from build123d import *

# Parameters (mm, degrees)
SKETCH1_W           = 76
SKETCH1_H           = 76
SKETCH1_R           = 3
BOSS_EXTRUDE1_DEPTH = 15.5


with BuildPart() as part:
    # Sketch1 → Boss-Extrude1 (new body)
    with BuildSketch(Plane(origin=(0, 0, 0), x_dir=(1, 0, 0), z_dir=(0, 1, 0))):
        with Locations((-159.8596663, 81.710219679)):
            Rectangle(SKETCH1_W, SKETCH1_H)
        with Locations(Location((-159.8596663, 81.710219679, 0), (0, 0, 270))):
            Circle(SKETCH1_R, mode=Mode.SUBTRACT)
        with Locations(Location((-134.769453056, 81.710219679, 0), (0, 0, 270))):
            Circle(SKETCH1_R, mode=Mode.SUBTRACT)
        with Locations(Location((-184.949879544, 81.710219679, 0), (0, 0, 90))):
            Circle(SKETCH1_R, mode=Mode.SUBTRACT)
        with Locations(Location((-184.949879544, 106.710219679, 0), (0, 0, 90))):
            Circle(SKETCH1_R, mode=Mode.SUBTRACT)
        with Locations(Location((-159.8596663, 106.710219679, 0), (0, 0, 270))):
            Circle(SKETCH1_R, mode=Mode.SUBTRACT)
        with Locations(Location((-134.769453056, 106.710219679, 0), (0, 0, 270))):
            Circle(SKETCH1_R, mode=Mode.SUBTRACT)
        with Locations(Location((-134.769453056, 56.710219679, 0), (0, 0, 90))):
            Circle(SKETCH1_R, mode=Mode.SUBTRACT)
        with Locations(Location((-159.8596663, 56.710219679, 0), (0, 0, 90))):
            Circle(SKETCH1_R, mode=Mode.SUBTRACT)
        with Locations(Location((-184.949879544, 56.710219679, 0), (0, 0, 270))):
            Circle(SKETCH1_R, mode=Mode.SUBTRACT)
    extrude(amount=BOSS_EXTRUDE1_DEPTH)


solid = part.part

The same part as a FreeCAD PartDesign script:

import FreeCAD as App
import Part
import Sketcher
from FreeCAD import Vector


def add_polygon(sketch, points):
    """Adds a closed chain of lines whose ends are joined by coincident constraints."""
    first, n = sketch.GeometryCount, len(points)
    for a, b in zip(points, points[1:] + points[:1]):
        sketch.addGeometry(Part.LineSegment(App.Vector(*a, 0), App.Vector(*b, 0)), False)
    for i in range(n):
        sketch.addConstraint(Sketcher.Constraint("Coincident", first + i, 2, first + (i + 1) % n, 1))

doc = App.newDocument("Part")
body = doc.addObject("PartDesign::Body", "Body")

sketch1 = body.newObject("Sketcher::SketchObject", "Sketch")
sketch1.AttachmentSupport = (doc.getObject("XZ_Plane"), [""])
sketch1.MapMode = "FlatFace"
add_polygon(sketch1, [(-197.9, -119.7), (-197.9, -43.7), (-121.9, -43.7), (-121.9, -119.7)])
sketch1.addGeometry(Part.Circle(Vector(-184.9, -56.7, 0), Vector(0, 0, 1), 3), False)
sketch1.addGeometry(Part.Circle(Vector(-159.9, -56.7, 0), Vector(0, 0, 1), 3), False)
sketch1.addGeometry(Part.Circle(Vector(-134.8, -56.7, 0), Vector(0, 0, 1), 3), False)
sketch1.addGeometry(Part.Circle(Vector(-184.9, -81.7, 0), Vector(0, 0, 1), 3), False)
sketch1.addGeometry(Part.Circle(Vector(-184.9, -106.7, 0), Vector(0, 0, 1), 3), False)
sketch1.addGeometry(Part.Circle(Vector(-159.9, -81.7, 0), Vector(0, 0, 1), 3), False)
sketch1.addGeometry(Part.Circle(Vector(-134.8, -81.7, 0), Vector(0, 0, 1), 3), False)
sketch1.addGeometry(Part.Circle(Vector(-159.9, -106.7, 0), Vector(0, 0, 1), 3), False)
sketch1.addGeometry(Part.Circle(Vector(-134.8, -106.7, 0), Vector(0, 0, 1), 3), False)
sketch1.addConstraint([
    Sketcher.Constraint("Vertical", 0),
    Sketcher.Constraint("Horizontal", 1),
    Sketcher.Constraint("Vertical", 2),
    Sketcher.Constraint("Horizontal", 3),
    Sketcher.Constraint("Equal", 4, 5),
    Sketcher.Constraint("Equal", 5, 6),
    Sketcher.Constraint("Equal", 6, 7),
    Sketcher.Constraint("Equal", 7, 8),
    Sketcher.Constraint("Equal", 8, 9),
    Sketcher.Constraint("Equal", 9, 10),
    Sketcher.Constraint("Equal", 10, 11),
    Sketcher.Constraint("Equal", 11, 12),
    Sketcher.Constraint("Horizontal", 4, 3, 5, 3),
    Sketcher.Constraint("Horizontal", 5, 3, 6, 3),
    Sketcher.Constraint("Horizontal", 7, 3, 9, 3),
    Sketcher.Constraint("Horizontal", 9, 3, 10, 3),
    Sketcher.Constraint("Horizontal", 8, 3, 11, 3),
    Sketcher.Constraint("Horizontal", 11, 3, 12, 3),
    Sketcher.Constraint("Vertical", 4, 3, 7, 3),
    Sketcher.Constraint("Vertical", 7, 3, 8, 3),
    Sketcher.Constraint("Vertical", 5, 3, 9, 3),
    Sketcher.Constraint("Vertical", 6, 3, 10, 3),
    Sketcher.Constraint("Vertical", 9, 3, 11, 3),
    Sketcher.Constraint("Vertical", 10, 3, 12, 3),
    Sketcher.Constraint("Equal", 3, 0),
    Sketcher.Constraint("Diameter", 4, 6.0),
    Sketcher.Constraint("DistanceX", 1, 1, 1, 2, 76.0),
    Sketcher.Constraint("DistanceY", 7, 3, 4, 3, 25.0),
    Sketcher.Constraint("DistanceY", 8, 3, 7, 3, 25.0),
    Sketcher.Constraint("DistanceY", 4, 3, 0, 2, 13.0),
    Sketcher.Constraint("DistanceX", 0, 2, 5, 3, 38.0),
    Sketcher.Constraint("DistanceX", 4, 3, -1, 1, 184.94988),
    Sketcher.Constraint("DistanceY", 4, 3, -1, 1, 56.71022),
    Sketcher.Constraint("DistanceX", 5, 3, -1, 1, 159.859666),
    Sketcher.Constraint("DistanceX", 6, 3, -1, 1, 134.769453),
])
pad1 = body.newObject("PartDesign::Pad", "Pad")
pad1.Profile = sketch1
pad1.Length = 15.5
pad1.Reversed = True

doc.recompute()
